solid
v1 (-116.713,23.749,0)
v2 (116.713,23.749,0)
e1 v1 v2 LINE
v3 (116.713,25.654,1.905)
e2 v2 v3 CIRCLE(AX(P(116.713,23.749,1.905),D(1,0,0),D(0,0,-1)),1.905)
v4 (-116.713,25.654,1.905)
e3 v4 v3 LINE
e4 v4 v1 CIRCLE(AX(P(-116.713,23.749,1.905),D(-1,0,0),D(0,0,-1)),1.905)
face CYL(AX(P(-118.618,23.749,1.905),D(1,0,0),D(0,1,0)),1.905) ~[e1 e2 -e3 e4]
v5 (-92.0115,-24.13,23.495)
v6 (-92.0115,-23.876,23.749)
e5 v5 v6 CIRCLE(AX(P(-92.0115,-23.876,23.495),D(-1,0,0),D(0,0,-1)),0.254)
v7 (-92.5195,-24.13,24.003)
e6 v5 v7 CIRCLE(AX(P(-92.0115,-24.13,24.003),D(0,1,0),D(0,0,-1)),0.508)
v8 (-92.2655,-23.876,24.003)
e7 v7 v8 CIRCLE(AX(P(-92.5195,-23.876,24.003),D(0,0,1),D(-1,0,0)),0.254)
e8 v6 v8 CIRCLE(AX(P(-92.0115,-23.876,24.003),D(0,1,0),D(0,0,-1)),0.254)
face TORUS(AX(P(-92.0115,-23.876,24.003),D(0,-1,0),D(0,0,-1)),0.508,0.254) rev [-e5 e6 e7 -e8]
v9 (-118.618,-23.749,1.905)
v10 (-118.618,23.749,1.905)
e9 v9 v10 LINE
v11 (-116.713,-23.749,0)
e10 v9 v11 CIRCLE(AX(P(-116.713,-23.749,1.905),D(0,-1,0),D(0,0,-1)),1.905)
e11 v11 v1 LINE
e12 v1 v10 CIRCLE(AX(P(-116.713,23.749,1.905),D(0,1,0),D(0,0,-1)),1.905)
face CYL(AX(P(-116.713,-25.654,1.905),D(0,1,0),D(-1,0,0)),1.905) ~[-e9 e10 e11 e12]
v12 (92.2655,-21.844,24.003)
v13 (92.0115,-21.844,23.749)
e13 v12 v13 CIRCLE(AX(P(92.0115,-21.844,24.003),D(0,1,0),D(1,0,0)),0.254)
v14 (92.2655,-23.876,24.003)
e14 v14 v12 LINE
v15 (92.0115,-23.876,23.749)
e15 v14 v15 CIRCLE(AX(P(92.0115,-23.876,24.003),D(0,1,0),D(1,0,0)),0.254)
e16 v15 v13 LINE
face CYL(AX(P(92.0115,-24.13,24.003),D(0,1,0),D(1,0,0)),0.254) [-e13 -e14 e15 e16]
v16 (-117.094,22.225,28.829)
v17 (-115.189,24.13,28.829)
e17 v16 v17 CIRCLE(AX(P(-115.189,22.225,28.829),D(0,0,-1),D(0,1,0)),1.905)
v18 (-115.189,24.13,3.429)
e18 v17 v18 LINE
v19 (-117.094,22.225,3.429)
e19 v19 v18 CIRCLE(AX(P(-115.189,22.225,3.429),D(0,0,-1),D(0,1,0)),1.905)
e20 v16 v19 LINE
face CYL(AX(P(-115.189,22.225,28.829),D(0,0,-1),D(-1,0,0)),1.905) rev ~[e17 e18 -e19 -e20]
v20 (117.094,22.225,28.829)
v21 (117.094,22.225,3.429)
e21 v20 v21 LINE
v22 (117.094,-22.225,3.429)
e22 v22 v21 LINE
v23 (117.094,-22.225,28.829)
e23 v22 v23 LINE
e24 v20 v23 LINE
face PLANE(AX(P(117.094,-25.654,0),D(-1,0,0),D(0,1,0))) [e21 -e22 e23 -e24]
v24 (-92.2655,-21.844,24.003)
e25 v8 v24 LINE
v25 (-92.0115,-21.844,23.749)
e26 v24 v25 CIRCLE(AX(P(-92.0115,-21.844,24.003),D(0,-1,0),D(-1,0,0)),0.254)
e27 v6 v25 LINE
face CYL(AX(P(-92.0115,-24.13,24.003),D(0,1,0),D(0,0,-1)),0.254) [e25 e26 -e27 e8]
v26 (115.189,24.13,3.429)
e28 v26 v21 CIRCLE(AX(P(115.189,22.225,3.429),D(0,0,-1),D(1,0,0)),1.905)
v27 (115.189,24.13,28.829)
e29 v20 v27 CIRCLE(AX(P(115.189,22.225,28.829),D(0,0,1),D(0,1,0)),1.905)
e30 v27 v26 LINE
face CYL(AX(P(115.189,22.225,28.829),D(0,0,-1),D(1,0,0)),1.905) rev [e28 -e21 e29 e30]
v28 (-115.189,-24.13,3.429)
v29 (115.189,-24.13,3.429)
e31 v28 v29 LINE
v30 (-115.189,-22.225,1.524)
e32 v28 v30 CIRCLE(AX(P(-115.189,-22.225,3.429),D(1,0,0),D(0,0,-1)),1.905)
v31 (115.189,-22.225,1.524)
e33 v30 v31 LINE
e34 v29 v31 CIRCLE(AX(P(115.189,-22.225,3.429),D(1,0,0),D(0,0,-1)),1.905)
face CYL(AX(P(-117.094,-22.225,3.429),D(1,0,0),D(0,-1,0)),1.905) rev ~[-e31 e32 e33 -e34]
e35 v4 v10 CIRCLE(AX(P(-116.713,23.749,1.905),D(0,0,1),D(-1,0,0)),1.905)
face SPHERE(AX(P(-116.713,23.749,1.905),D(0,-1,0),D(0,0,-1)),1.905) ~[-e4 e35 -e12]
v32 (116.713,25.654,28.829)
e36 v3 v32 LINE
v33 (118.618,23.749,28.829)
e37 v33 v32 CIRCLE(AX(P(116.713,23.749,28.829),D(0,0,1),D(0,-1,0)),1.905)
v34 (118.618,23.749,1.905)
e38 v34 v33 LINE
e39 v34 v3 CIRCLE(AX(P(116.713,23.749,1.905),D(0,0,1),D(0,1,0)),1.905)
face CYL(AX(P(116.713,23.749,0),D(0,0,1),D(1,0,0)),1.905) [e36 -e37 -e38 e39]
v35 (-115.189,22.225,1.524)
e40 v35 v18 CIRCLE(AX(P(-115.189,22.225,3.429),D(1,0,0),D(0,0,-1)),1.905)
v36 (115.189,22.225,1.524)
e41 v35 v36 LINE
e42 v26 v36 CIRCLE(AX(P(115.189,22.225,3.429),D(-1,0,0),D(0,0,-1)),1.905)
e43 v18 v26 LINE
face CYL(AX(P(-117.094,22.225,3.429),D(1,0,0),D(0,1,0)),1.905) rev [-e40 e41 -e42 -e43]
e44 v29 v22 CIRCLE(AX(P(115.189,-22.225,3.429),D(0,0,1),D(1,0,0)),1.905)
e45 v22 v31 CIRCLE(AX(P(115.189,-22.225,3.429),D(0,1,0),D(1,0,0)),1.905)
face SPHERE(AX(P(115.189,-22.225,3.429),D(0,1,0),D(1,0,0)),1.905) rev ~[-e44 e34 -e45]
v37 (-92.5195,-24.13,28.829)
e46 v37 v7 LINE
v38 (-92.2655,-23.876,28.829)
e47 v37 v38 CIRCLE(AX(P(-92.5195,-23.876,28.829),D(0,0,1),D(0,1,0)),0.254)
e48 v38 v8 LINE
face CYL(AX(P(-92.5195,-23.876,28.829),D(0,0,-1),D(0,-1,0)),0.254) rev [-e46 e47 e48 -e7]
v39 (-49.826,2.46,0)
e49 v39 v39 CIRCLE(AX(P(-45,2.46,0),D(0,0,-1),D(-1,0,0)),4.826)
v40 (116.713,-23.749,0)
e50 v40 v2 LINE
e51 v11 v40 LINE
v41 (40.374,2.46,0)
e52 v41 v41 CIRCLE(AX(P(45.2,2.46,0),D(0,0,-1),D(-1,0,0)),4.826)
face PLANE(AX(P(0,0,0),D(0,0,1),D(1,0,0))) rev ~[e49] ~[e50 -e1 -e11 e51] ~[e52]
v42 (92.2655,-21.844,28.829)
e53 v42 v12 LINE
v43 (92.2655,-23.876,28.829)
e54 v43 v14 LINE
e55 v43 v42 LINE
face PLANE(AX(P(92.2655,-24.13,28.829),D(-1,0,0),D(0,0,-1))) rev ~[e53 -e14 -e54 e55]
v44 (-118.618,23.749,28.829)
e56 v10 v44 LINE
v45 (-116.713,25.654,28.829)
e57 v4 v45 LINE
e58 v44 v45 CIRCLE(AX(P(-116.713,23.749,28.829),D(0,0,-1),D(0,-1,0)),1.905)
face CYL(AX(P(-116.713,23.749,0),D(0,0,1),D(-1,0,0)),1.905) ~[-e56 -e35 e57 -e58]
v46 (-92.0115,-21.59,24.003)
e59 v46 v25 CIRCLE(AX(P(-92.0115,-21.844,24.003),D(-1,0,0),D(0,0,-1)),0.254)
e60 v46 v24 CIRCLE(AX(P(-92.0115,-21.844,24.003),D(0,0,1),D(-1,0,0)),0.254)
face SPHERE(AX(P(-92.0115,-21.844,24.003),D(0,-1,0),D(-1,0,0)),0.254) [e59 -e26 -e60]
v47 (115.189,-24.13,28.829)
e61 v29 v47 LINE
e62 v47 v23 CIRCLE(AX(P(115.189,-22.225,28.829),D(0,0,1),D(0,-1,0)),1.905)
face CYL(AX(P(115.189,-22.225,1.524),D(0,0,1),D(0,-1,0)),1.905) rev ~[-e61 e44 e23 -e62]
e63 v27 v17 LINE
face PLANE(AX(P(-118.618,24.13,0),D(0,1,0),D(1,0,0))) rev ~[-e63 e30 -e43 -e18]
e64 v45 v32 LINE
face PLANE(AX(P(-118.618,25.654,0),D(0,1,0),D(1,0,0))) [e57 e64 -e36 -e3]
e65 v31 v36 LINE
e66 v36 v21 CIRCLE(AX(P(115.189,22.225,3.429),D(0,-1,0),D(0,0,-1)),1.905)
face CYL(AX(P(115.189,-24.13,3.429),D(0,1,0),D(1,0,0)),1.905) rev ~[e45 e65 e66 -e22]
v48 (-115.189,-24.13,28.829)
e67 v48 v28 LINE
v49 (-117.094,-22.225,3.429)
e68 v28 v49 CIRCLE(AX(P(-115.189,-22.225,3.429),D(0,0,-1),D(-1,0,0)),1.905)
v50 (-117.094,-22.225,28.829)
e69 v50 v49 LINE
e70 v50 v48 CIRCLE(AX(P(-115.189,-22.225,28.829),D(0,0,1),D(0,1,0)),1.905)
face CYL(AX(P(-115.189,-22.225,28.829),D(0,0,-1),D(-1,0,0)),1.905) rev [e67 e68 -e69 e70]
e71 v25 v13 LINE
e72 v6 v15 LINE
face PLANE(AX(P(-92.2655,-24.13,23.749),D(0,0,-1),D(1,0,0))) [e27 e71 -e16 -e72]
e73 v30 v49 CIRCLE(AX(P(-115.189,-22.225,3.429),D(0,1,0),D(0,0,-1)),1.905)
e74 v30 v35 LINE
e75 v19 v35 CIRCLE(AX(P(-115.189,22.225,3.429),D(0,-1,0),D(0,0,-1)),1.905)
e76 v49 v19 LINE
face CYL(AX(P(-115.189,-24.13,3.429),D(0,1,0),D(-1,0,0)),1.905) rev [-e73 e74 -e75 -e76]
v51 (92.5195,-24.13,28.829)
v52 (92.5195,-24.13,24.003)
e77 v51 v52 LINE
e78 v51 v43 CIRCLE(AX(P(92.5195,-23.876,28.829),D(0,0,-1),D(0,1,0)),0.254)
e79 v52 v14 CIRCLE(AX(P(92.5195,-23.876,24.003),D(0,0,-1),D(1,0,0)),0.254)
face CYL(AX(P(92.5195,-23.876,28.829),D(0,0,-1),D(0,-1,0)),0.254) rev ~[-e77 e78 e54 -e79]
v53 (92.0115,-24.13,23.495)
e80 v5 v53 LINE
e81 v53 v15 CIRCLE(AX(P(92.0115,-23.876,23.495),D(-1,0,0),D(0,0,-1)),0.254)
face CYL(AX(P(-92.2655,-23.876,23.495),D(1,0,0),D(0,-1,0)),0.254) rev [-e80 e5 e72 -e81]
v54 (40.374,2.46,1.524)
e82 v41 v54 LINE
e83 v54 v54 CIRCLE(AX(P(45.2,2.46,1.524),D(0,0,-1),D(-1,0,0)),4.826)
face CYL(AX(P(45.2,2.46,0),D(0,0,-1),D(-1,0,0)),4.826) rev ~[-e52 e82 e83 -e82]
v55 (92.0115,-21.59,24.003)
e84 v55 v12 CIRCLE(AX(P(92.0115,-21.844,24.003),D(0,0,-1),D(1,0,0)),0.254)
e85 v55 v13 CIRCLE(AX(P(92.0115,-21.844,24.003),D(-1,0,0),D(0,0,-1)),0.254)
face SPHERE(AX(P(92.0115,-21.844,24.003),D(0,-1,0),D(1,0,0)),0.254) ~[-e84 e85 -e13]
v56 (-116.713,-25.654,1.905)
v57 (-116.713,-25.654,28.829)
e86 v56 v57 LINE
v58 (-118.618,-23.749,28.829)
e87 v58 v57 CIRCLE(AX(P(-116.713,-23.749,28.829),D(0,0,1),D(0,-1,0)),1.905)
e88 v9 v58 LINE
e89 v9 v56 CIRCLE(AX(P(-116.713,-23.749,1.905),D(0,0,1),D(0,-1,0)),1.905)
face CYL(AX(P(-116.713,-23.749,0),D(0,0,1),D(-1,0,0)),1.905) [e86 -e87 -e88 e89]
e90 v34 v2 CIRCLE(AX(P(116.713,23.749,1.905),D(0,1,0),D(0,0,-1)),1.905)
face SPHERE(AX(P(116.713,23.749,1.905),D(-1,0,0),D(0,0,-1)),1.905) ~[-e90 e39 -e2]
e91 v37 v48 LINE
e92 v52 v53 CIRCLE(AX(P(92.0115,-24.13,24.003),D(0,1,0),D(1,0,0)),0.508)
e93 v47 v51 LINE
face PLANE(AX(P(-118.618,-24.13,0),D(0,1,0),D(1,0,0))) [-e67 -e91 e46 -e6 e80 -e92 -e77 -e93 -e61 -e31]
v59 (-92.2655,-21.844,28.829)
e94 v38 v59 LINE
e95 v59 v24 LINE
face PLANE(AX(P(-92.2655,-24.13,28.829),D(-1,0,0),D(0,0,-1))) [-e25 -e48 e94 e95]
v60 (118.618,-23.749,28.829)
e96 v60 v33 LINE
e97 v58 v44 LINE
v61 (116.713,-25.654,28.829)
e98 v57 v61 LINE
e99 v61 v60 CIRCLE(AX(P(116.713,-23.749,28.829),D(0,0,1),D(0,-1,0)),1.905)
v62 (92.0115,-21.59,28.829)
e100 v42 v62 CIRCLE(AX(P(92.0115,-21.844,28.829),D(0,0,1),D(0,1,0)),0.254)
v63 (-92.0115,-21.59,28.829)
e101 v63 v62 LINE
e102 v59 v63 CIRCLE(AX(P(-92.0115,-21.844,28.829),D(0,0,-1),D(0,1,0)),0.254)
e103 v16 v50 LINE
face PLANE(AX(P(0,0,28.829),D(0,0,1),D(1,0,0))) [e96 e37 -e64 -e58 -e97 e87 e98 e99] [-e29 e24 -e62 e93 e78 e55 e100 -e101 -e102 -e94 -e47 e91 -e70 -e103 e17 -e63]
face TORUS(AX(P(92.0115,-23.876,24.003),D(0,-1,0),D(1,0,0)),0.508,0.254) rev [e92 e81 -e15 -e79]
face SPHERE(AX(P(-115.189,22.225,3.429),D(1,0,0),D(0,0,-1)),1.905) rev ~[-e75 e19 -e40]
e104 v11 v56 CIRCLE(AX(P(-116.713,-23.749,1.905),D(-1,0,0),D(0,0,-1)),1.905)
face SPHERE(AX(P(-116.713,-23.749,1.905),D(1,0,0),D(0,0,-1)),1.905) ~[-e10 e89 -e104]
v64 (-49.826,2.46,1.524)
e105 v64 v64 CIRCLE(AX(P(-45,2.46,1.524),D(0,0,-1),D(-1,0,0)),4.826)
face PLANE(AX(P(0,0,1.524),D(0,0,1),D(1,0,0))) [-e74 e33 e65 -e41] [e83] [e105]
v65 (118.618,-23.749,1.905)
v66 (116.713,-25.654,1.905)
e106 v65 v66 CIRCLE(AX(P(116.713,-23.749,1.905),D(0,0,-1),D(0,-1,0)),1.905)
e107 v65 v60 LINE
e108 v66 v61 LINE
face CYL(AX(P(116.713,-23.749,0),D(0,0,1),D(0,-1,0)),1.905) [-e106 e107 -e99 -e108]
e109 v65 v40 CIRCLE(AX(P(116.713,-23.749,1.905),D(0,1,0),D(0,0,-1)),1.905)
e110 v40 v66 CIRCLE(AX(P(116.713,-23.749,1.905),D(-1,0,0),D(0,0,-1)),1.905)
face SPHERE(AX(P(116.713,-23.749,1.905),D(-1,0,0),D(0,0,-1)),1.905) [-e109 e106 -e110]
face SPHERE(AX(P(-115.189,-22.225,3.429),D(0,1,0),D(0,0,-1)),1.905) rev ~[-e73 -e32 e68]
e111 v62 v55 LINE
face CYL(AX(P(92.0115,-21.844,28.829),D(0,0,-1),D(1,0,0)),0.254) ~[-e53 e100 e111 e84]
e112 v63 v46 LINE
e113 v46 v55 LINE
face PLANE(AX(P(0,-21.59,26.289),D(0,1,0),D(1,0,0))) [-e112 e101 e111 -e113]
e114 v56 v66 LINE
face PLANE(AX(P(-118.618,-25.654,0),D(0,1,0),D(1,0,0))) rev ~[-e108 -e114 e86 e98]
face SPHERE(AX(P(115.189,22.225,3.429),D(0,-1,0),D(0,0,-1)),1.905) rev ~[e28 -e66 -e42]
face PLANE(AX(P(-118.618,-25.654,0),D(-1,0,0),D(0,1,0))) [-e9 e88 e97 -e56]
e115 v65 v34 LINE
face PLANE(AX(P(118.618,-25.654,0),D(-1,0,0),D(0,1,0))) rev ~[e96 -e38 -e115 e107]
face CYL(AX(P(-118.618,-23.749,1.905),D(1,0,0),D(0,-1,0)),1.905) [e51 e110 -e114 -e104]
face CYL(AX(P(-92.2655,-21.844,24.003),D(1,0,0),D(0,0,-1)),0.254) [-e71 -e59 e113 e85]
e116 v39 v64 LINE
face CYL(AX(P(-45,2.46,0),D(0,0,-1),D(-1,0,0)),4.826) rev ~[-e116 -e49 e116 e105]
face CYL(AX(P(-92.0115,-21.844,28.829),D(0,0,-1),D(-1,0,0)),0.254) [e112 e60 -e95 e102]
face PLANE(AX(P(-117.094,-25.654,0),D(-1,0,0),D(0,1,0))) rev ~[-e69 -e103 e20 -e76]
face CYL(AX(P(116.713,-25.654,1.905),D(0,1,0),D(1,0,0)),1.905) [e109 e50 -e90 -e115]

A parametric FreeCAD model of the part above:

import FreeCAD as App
import Part
import Sketcher
Q = App.Units.Quantity


def edges_at(feature, points):
    """Names of the edges that pass closest to the given points."""
    edges = feature.Shape.Edges
    near = lambda p: min(range(len(edges)), key=lambda i: edges[i].distToShape(Part.Vertex(*p))[0])
    return sorted({f"Edge{near(p) + 1}" for p in points})


def faces_at(feature, points):
    """Names of the faces that lie closest to the given points."""
    faces = feature.Shape.Faces
    near = lambda p: min(range(len(faces)), key=lambda i: faces[i].distToShape(Part.Vertex(*p))[0])
    return sorted({f"Face{near(p) + 1}" for p in points})


def add_polygon(sketch, points):
    """Adds a closed chain of lines whose ends are joined by coincident constraints."""
    first, n = sketch.GeometryCount, len(points)
    for a, b in zip(points, points[1:] + points[:1]):
        sketch.addGeometry(Part.LineSegment(App.Vector(*a, 0), App.Vector(*b, 0)), False)
    for i in range(n):
        sketch.addConstraint(Sketcher.Constraint("Coincident", first + i, 2, first + (i + 1) % n, 1))

doc = App.newDocument("Part")
params = doc.addObject("Spreadsheet::Sheet", "Params")
for row, (alias, value) in enumerate([
    ("sketch1_width", "9.34 in"),
    ("sketch1_height", "2.02 in"),
    ("pad1_length", "1.135 in"),
    ("thickness_wall", "0.06 in"),
    ("fillet_radius", "0.075 in"),
    ("fillet2_radius", "0.075 in"),
    ("sketch2_diameter", "0.38 in"),
    ("pocket1_length", "0.1 in"),
    ("sketch3_height", "0.2 in"),
    ("sketch3_width", "7.265 in"),
    ("pad2_length", "0.1 in"),
    ("fillet3_radius", "0.01 in"),
], start=1):
    params.set(f"A{row}", alias)
    params.set(f"B{row}", "=" + value)
    params.setAlias(f"B{row}", alias)

body = doc.addObject("PartDesign::Body", "Body")

sketch1 = body.newObject("Sketcher::SketchObject", "Sketch")
sketch1.AttachmentSupport = (doc.getObject("XY_Plane"), [""])
sketch1.MapMode = "FlatFace"
add_polygon(sketch1, [(-119, 26), (-119, -26), (119, -26), (119, 26)])
sketch1.addConstraint([
    Sketcher.Constraint("Vertical", 0),
    Sketcher.Constraint("Horizontal", 1),
    Sketcher.Constraint("Vertical", 2),
    Sketcher.Constraint("Horizontal", 3),
    Sketcher.Constraint("Symmetric", 0, 2, 2, 2, -1, 1),
    Sketcher.Constraint("DistanceX", 1, 1, 1, 2, Q("9.34 in")),
    Sketcher.Constraint("DistanceY", 0, 2, 0, 1, Q("2.02 in")),
])
sketch1.setExpression("Constraints[9]", "Params.sketch1_width")
sketch1.setExpression("Constraints[10]", "Params.sketch1_height")
pad1 = body.newObject("PartDesign::Pad", "Pad")
pad1.Profile = sketch1
pad1.setExpression("Length", "Params.pad1_length")
doc.recompute()

thickness = body.newObject("PartDesign::Thickness", "Thickness")
thickness.Base = (pad1, faces_at(pad1, [(0, 0, 28.829)]))
thickness.setExpression("Value", "Params.thickness_wall")
thickness.Reversed = True
thickness.Join = "Intersection"
doc.recompute()

fillet = body.newObject("PartDesign::Fillet", "Fillet")
fillet.Base = (thickness, edges_at(thickness, [
    (117.094, 0, 1.524),
    (117.094, -24.13, 15.177),
    (0, 24.13, 1.524),
    (117.094, 24.13, 15.177),
    (-117.094, 0, 1.524),
    (-117.094, 24.13, 15.177),
    (0, -24.13, 1.524),
    (-117.094, -24.13, 15.177),
]))
fillet.setExpression("Radius", "Params.fillet_radius")
doc.recompute()

fillet2 = body.newObject("PartDesign::Fillet", "Fillet001")
fillet2.Base = (fillet, edges_at(fillet, [
    (0, -25.654, 0),
    (-118.618, 0, 0),
    (0, 25.654, 0),
    (118.618, 0, 0),
    (118.618, -25.654, 14.415),
    (-118.618, -25.654, 14.415),
    (-118.618, 25.654, 14.415),
    (118.618, 25.654, 14.415),
]))
fillet2.setExpression("Radius", "Params.fillet2_radius")

sketch2 = body.newObject("Sketcher::SketchObject", "Sketch001")
sketch2.AttachmentSupport = (doc.getObject("XY_Plane"), [""])
sketch2.MapMode = "FlatFace"
sketch2.addGeometry([
    Part.Circle(App.Vector(45.2, 2.5, 0), App.Vector(0, 0, 1), 4.8),
    Part.Circle(App.Vector(-45, 2.5, 0), App.Vector(0, 0, 1), 4.8),
], False)
sketch2.addConstraint([
    Sketcher.Constraint("Equal", 0, 1),
    Sketcher.Constraint("Horizontal", 0, 3, 1, 3),
    Sketcher.Constraint("Diameter", 0, Q("0.38 in")),
    Sketcher.Constraint("DistanceX", -1, 1, 0, 3, 45.2),
    Sketcher.Constraint("DistanceY", -1, 1, 0, 3, 2.46),
    Sketcher.Constraint("DistanceX", 1, 3, -1, 1, 45.0),
])
sketch2.setExpression("Constraints[2]", "Params.sketch2_diameter")
pocket1 = body.newObject("PartDesign::Pocket", "Pocket")
pocket1.Profile = sketch2
pocket1.setExpression("Length", "Params.pocket1_length")
pocket1.Reversed = True

sketch3 = body.newObject("Sketcher::SketchObject", "Sketch002")
sketch3.AttachmentSupport = (doc.getObject("XZ_Plane"), [""])
sketch3.MapMode = "FlatFace"
sketch3.AttachmentOffset = App.Placement(App.Vector(0, 0, 0.95 * 25.4), App.Rotation())
add_polygon(sketch3, [(-92, 24), (-92, 29), (92, 29), (92, 24)])
sketch3.addConstraint([
    Sketcher.Constraint("Vertical", 0),
    Sketcher.Constraint("Horizontal", 1),
    Sketcher.Constraint("Vertical", 2),
    Sketcher.Constraint("Horizontal", 3),
    Sketcher.Constraint("DistanceY", 0, 1, 0, 2, Q("0.2 in")),
    Sketcher.Constraint("DistanceX", 1, 1, 1, 2, Q("7.265 in")),
    Sketcher.Constraint("DistanceY", -1, 1, 0, 2, Q("1.135 in")),
    Sketcher.Constraint("DistanceX", 0, 2, -1, 1, Q("3.6325 in")),
])
sketch3.setExpression("Constraints[8]", "Params.sketch3_height")
sketch3.setExpression("Constraints[9]", "Params.sketch3_width")
pad2 = body.newObject("PartDesign::Pad", "Pad001")
pad2.Profile = sketch3
pad2.setExpression("Length", "Params.pad2_length")
pad2.Reversed = True
doc.recompute()

fillet3 = body.newObject("PartDesign::Fillet", "Fillet002")
fillet3.Base = (pad2, edges_at(pad2, [
    (-92.266, -24.13, 26.289),
    (-92.266, -22.86, 23.749),
    (92.266, -24.13, 26.289),
    (0, -24.13, 23.749),
    (92.266, -22.86, 23.749),
    (-92.266, -21.59, 26.289),
    (92.266, -21.59, 26.289),
    (0, -21.59, 23.749),
]))
fillet3.setExpression("Radius", "Params.fillet3_radius")

doc.recompute()
